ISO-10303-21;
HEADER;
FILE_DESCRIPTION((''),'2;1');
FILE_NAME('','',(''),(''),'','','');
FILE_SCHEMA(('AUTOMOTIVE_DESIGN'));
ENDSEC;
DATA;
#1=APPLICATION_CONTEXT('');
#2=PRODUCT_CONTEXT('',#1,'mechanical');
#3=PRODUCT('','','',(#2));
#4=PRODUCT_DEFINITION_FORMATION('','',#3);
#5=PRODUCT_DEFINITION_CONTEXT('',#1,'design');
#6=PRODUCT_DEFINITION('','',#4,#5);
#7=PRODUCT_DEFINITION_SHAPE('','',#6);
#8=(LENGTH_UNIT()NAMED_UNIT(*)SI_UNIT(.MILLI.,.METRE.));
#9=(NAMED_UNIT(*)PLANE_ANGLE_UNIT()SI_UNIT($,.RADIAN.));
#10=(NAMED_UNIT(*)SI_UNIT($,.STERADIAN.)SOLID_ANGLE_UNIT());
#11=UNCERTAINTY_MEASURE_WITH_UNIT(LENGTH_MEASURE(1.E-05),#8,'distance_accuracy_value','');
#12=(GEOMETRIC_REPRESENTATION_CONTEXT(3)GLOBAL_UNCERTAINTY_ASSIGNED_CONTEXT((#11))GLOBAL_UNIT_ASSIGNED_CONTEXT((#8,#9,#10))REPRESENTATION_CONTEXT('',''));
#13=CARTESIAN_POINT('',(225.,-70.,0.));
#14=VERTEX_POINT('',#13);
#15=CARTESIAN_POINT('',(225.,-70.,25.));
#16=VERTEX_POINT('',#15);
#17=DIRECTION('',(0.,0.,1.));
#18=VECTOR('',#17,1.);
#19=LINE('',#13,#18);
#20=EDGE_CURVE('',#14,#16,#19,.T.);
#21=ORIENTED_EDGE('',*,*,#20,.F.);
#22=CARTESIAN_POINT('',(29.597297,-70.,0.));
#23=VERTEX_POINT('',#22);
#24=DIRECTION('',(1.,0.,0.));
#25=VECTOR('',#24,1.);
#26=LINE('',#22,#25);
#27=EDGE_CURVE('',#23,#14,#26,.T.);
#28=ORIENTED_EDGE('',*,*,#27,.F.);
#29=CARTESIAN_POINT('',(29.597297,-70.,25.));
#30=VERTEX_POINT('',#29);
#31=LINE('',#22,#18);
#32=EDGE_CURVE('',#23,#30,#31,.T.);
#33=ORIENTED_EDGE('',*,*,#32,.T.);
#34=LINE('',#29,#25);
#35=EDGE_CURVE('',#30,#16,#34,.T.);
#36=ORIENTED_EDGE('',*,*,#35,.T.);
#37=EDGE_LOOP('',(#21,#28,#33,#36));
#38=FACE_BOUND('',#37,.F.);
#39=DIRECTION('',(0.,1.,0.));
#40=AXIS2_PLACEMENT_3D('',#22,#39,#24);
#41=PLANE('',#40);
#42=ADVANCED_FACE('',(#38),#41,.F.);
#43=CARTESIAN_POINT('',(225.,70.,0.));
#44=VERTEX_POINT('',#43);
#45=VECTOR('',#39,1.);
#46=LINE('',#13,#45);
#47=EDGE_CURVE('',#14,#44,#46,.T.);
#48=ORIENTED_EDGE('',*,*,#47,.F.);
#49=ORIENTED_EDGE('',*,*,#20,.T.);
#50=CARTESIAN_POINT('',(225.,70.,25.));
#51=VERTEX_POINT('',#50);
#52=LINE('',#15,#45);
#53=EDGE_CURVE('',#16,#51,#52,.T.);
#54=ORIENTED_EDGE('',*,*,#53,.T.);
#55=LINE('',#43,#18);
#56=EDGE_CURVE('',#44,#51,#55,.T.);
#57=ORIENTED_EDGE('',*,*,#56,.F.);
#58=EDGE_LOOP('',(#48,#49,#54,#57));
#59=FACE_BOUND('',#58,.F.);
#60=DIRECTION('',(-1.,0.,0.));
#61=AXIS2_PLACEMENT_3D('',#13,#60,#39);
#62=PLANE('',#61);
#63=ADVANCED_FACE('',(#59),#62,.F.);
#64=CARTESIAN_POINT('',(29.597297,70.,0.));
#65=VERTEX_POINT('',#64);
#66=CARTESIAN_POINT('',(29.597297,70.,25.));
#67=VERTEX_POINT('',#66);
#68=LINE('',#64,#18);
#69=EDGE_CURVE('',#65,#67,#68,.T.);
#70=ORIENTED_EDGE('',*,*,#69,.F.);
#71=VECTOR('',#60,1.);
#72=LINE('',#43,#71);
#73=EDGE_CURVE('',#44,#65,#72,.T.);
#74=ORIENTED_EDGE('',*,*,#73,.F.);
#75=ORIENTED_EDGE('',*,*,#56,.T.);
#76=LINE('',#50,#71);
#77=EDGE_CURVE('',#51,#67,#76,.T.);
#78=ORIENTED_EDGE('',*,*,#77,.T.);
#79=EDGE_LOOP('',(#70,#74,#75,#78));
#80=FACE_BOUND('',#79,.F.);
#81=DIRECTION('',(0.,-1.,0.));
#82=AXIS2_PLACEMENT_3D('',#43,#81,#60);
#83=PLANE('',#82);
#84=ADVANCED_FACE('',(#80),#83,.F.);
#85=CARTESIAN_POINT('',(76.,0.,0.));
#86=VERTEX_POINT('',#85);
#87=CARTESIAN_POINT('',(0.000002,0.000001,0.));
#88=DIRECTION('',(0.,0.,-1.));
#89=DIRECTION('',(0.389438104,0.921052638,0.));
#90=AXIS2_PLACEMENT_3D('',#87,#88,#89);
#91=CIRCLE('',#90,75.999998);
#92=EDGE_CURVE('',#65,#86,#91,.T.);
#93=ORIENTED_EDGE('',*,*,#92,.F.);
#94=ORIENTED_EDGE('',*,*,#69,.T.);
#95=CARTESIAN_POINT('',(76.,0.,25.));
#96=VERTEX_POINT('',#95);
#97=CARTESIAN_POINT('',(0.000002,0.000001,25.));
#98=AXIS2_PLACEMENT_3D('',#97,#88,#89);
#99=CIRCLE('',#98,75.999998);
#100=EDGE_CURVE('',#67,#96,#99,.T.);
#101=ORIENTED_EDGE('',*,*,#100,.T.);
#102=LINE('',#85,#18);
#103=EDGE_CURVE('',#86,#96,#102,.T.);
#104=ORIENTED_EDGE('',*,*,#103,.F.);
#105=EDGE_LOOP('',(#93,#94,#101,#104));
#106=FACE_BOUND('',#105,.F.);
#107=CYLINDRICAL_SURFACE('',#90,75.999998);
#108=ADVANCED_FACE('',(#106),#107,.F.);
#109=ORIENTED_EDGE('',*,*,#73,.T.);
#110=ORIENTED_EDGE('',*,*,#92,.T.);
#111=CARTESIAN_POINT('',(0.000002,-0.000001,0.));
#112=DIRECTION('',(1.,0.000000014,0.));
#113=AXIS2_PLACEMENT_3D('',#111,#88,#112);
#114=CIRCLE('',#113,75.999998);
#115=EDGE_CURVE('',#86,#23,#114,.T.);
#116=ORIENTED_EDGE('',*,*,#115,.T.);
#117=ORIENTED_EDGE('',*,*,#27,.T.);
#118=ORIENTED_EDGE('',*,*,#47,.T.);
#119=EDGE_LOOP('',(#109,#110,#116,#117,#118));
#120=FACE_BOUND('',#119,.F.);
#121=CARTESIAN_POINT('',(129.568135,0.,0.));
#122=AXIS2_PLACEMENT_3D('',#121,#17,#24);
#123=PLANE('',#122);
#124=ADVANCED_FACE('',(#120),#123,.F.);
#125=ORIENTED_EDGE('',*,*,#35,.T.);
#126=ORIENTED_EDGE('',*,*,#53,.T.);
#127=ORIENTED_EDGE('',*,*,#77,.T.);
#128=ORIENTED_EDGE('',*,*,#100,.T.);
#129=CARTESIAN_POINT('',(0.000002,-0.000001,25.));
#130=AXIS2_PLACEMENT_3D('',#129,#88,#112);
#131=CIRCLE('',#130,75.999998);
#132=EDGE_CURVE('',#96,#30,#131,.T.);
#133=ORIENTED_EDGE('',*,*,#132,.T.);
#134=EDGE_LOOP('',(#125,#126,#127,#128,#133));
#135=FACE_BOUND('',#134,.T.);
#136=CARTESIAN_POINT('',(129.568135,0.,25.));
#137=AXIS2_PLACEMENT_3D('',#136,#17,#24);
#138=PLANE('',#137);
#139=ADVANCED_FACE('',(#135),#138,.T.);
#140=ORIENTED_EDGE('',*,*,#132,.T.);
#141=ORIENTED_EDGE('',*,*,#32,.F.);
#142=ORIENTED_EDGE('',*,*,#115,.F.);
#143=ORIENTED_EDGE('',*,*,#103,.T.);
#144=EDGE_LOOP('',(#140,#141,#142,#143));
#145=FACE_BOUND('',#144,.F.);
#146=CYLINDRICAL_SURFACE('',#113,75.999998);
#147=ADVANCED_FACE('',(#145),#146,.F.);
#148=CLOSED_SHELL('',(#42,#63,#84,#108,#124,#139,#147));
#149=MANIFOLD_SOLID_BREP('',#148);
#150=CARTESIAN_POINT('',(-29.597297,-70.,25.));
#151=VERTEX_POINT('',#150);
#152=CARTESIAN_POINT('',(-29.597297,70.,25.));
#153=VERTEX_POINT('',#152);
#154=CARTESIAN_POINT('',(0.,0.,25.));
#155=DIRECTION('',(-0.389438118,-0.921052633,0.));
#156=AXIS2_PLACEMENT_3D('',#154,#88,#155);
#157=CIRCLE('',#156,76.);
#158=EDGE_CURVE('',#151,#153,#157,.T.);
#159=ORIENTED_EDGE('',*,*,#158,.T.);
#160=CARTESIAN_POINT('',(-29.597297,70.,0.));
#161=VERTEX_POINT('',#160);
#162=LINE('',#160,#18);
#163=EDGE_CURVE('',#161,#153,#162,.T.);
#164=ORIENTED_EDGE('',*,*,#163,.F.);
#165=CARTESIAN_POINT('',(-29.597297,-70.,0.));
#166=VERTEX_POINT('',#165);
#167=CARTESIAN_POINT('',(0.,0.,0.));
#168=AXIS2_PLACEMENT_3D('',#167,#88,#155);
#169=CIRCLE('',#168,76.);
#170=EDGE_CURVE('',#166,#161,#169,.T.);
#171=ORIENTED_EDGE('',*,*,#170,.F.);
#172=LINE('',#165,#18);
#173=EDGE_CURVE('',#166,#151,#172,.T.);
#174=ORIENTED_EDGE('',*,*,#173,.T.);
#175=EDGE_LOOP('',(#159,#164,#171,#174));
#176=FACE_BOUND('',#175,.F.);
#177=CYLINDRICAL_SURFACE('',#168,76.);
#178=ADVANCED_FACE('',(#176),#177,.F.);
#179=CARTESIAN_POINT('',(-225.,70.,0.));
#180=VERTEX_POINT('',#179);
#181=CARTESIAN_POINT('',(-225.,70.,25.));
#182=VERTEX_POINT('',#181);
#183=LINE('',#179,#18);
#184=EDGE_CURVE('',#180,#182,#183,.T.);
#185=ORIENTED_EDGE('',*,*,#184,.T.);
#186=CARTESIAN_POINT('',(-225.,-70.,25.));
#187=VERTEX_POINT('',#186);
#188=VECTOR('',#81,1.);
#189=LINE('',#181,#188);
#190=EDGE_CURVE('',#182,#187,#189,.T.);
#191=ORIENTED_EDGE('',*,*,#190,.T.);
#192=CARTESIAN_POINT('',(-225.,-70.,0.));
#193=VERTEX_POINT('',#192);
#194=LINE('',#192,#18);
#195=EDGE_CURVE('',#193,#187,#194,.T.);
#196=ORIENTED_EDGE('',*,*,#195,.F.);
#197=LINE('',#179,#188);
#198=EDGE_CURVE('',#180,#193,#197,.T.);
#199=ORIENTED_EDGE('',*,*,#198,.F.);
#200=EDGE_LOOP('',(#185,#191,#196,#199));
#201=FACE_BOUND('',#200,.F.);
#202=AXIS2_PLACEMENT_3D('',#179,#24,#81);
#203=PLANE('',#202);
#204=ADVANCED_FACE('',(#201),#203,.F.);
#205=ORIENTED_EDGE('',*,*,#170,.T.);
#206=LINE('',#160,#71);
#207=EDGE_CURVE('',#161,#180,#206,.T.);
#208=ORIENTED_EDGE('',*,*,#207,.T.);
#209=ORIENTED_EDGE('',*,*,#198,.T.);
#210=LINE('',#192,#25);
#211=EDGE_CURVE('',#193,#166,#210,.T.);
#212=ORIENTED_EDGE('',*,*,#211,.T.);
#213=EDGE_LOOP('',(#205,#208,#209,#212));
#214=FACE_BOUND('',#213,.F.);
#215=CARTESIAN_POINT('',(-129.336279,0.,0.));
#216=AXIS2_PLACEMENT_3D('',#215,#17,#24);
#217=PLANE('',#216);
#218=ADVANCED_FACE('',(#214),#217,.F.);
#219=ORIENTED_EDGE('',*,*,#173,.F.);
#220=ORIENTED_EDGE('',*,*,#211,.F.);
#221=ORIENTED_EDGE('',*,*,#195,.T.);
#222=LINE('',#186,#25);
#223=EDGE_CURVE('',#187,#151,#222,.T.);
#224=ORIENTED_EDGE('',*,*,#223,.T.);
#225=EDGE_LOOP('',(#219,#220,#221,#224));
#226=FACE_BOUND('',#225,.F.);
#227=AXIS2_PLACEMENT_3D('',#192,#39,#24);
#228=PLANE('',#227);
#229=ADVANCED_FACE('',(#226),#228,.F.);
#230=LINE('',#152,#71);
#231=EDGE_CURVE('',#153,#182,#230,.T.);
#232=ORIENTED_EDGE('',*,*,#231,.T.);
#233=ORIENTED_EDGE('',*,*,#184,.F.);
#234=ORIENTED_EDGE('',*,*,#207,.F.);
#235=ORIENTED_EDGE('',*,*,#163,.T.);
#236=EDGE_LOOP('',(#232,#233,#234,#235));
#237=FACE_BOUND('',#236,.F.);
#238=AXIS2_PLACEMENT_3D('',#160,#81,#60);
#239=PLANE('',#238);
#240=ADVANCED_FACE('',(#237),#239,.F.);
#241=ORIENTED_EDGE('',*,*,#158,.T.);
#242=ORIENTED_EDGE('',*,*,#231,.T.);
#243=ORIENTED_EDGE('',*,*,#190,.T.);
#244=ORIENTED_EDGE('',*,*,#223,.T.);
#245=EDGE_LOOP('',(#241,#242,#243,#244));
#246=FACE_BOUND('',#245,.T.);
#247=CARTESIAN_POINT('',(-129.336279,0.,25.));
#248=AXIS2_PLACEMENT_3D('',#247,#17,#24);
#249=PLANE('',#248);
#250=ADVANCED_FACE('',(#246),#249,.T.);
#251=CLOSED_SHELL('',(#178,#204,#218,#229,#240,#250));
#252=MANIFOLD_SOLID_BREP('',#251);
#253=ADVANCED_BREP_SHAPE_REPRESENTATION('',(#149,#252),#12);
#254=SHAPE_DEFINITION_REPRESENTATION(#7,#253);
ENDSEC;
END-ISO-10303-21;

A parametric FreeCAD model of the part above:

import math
import FreeCAD as App
import Part
import Sketcher

V = App.Vector

doc = App.newDocument("Part")
body = doc.addObject("PartDesign::Body", "Body")
body.AllowCompound = True

# Sketch on XY plane
sketch1 = body.newObject("Sketcher::SketchObject", "Sketch")
sketch1.AttachmentSupport = (doc.getObject("XY_Plane"), [""])
sketch1.MapMode = "FlatFace"
sketch1.addGeometry(Part.ArcOfCircle(Part.Circle(V(0.000002, 0.000001, 0), V(0, 0, 1), 75.999998), math.radians(-0.000001), math.radians(67.080459)), False)
sketch1.addGeometry(Part.ArcOfCircle(Part.Circle(V(0.000002, -0.000001, 0), V(0, 0, 1), 75.999998), math.radians(-67.080459), math.radians(0.000001)), False)
sketch1.addGeometry(Part.LineSegment(V(29.597297, -70, 0), V(225, -70, 0)), False)
sketch1.addGeometry(Part.LineSegment(V(225, -70, 0), V(225, 70, 0)), False)
sketch1.addGeometry(Part.LineSegment(V(225, 70, 0), V(29.597297, 70, 0)), False)
sketch1.addGeometry(Part.ArcOfCircle(Part.Circle(V(0, 0, 0), V(0, 0, 1), 76), math.radians(112.919542), math.radians(247.080458)), False)
sketch1.addGeometry(Part.LineSegment(V(-29.597297, 70, 0), V(-225, 70, 0)), False)
sketch1.addGeometry(Part.LineSegment(V(-225, 70, 0), V(-225, -70, 0)), False)
sketch1.addGeometry(Part.LineSegment(V(-225, -70, 0), V(-29.597297, -70, 0)), False)
sketch1.addConstraint(Sketcher.Constraint("Tangent", 0, 1, 1, 2))
sketch1.addConstraint(Sketcher.Constraint("Coincident", 1, 1, 2, 1))
sketch1.addConstraint(Sketcher.Constraint("Coincident", 2, 2, 3, 1))
sketch1.addConstraint(Sketcher.Constraint("Coincident", 3, 2, 4, 1))
sketch1.addConstraint(Sketcher.Constraint("Coincident", 4, 2, 0, 2))
sketch1.addConstraint(Sketcher.Constraint("Coincident", 5, 1, 6, 1))
sketch1.addConstraint(Sketcher.Constraint("Coincident", 6, 2, 7, 1))
sketch1.addConstraint(Sketcher.Constraint("Coincident", 7, 2, 8, 1))
sketch1.addConstraint(Sketcher.Constraint("Coincident", 8, 2, 5, 2))
sketch1.addConstraint(Sketcher.Constraint("Horizontal", 2))
sketch1.addConstraint(Sketcher.Constraint("Vertical", 3))
sketch1.addConstraint(Sketcher.Constraint("Horizontal", 4))
sketch1.addConstraint(Sketcher.Constraint("Horizontal", 6))
sketch1.addConstraint(Sketcher.Constraint("Vertical", 7))
sketch1.addConstraint(Sketcher.Constraint("Horizontal", 8))
sketch1.addConstraint(Sketcher.Constraint("Coincident", 0, 3, -1, 1))
sketch1.addConstraint(Sketcher.Constraint("Coincident", 5, 3, -1, 1))
sketch1.addConstraint(Sketcher.Constraint("Equal", 0, 1))
sketch1.addConstraint(Sketcher.Constraint("Equal", 1, 5))
sketch1.addConstraint(Sketcher.Constraint("Symmetric", 2, 2, 6, 2, -1, 1))
sketch1.addConstraint(Sketcher.Constraint("PointOnObject", 0, 1, -1))
sketch1.addConstraint(Sketcher.Constraint("Horizontal", 4, 2, 5, 1))
sketch1.addConstraint(Sketcher.Constraint("Horizontal", 2, 2, 7, 2))
sketch1.addConstraint(Sketcher.Constraint("Radius", 0, 75.999998))
sketch1.addConstraint(Sketcher.Constraint("DistanceY", 3, 1, 3, 2, 140.0))
sketch1.addConstraint(Sketcher.Constraint("DistanceX", -1, 1, 2, 2, 225.0))
pad1 = body.newObject("PartDesign::Pad", "Pad")
pad1.Profile = sketch1
pad1.Length = 25

doc.recompute()
